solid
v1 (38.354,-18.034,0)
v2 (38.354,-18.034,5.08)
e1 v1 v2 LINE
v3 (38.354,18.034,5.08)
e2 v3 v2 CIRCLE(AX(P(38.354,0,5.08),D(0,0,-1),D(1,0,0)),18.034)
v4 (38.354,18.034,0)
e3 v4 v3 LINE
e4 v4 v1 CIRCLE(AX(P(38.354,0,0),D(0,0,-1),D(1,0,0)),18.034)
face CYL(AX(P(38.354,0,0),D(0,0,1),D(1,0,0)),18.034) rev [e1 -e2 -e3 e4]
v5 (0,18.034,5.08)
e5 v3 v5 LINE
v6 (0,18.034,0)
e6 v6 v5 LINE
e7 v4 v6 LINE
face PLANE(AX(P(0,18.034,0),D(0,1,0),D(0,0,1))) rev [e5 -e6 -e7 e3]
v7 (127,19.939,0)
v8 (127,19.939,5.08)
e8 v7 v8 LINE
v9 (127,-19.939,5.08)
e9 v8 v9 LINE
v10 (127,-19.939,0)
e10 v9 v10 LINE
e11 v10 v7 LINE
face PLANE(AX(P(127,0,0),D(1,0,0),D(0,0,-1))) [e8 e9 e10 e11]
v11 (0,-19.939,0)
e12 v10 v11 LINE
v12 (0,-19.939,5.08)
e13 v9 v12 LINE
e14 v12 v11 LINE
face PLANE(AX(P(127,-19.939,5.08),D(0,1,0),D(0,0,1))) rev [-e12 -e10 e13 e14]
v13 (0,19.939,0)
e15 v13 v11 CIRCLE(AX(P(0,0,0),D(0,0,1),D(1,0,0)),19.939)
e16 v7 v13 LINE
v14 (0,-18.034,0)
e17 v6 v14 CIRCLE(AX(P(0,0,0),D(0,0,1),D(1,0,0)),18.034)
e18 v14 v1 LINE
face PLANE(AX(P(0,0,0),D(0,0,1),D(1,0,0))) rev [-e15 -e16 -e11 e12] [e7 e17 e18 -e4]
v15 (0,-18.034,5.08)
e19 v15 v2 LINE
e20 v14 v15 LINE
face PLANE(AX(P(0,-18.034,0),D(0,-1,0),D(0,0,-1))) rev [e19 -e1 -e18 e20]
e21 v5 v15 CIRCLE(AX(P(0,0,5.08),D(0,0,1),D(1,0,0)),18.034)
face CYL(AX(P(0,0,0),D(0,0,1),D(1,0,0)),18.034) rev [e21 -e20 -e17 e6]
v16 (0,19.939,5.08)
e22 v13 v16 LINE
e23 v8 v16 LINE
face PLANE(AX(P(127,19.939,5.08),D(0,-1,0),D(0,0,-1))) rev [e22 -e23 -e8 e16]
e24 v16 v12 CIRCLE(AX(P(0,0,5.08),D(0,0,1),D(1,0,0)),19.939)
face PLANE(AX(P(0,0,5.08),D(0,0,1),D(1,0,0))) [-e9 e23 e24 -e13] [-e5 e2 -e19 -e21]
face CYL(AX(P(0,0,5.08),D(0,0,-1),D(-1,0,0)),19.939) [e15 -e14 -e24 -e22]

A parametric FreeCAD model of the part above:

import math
import FreeCAD as App
import Part
import Sketcher
from FreeCAD import Vector
Q = App.Units.Quantity

doc = App.newDocument("Part")
body = doc.addObject("PartDesign::Body", "Body")

# Sketch on XY plane
sketch1 = doc.addObject("Sketcher::SketchObject", "Sketch")
body.addObject(sketch1)
sketch1.AttachmentSupport = (doc.XY_Plane, [""])
sketch1.MapMode = "FlatFace"
sketch1.addGeometry(Part.Circle(Vector(0, 0, 0), Vector(0, 0, 1), 20), False)
sketch1.addConstraint([
    Sketcher.Constraint("Coincident", 0, 3, -1, 1),
    Sketcher.Constraint("Diameter", 0, Q("1.57 in")),
])
pad1 = doc.addObject("PartDesign::Pad", "Pad")
body.addObject(pad1)
pad1.Profile = sketch1
pad1.Length = Q("0.2 in")

# Sketch on YZ plane
sketch2 = doc.addObject("Sketcher::SketchObject", "Sketch001")
body.addObject(sketch2)
sketch2.AttachmentSupport = (doc.YZ_Plane, [""])
sketch2.MapMode = "FlatFace"
sketch2.addGeometry([
    Part.LineSegment(Vector(20, 5, 0), Vector(-20, 5, 0)),
    Part.LineSegment(Vector(-20, 5, 0), Vector(-20, 0, 0)),
    Part.LineSegment(Vector(-20, 0, 0), Vector(20, 0, 0)),
    Part.LineSegment(Vector(20, 0, 0), Vector(20, 5, 0)),
], False)
sketch2.addConstraint([
    Sketcher.Constraint("Coincident", 0, 2, 1, 1),
    Sketcher.Constraint("Coincident", 1, 2, 2, 1),
    Sketcher.Constraint("Coincident", 2, 2, 3, 1),
    Sketcher.Constraint("Coincident", 3, 2, 0, 1),
    Sketcher.Constraint("Horizontal", 0),
    Sketcher.Constraint("Vertical", 1),
    Sketcher.Constraint("Horizontal", 2),
    Sketcher.Constraint("Vertical", 3),
    Sketcher.Constraint("Symmetric", 1, 2, 2, 2, -1, 1),
    Sketcher.Constraint("DistanceY", 1, 2, 1, 1, Q("0.2 in")),
    Sketcher.Constraint("DistanceX", 0, 2, 0, 1, Q("1.57 in")),
])
pad2 = doc.addObject("PartDesign::Pad", "Pad001")
body.addObject(pad2)
pad2.Profile = sketch2
pad2.Length = Q("5 in")

# Sketch on XY plane
sketch3 = doc.addObject("Sketcher::SketchObject", "Sketch002")
body.addObject(sketch3)
sketch3.AttachmentSupport = (doc.XY_Plane, [""])
sketch3.MapMode = "FlatFace"
sketch3.AttachmentOffset = App.Placement(Vector(0, 0, 0.2 * 25.4), App.Rotation())
sketch3.addGeometry(Part.Circle(Vector(0, 0, 0), Vector(0, 0, 1), 18), False)
sketch3.addConstraint([
    Sketcher.Constraint("Coincident", 0, 3, -1, 1),
    Sketcher.Constraint("Diameter", 0, Q("1.42 in")),
])
pocket1 = doc.addObject("PartDesign::Pocket", "Pocket")
body.addObject(pocket1)
pocket1.Profile = sketch3
pocket1.Type = "ThroughAll"

# Sketch on XY plane
sketch4 = doc.addObject("Sketcher::SketchObject", "Sketch003")
body.addObject(sketch4)
sketch4.AttachmentSupport = (doc.XY_Plane, [""])
sketch4.MapMode = "FlatFace"
sketch4.AttachmentOffset = App.Placement(Vector(0, 0, 0.2 * 25.4), App.Rotation())
sketch4.addGeometry([
    Part.LineSegment(Vector(0, 18, 0), Vector(0, -18, 0)),
    Part.LineSegment(Vector(0, -18, 0), Vector(125, -18, 0)),
    Part.LineSegment(Vector(125, -18, 0), Vector(125, 18, 0)),
    Part.LineSegment(Vector(125, 18, 0), Vector(0, 18, 0)),
], False)
sketch4.addConstraint([
    Sketcher.Constraint("Coincident", 0, 2, 1, 1),
    Sketcher.Constraint("Coincident", 1, 2, 2, 1),
    Sketcher.Constraint("Coincident", 2, 2, 3, 1),
    Sketcher.Constraint("Coincident", 3, 2, 0, 1),
    Sketcher.Constraint("Vertical", 0),
    Sketcher.Constraint("Horizontal", 1),
    Sketcher.Constraint("Vertical", 2),
    Sketcher.Constraint("Horizontal", 3),
    Sketcher.Constraint("Symmetric", 0, 2, 3, 2, -1, 1),
    Sketcher.Constraint("DistanceY", 0, 2, 0, 1, Q("1.42 in")),
    Sketcher.Constraint("DistanceX", 1, 1, 1, 2, Q("4.925 in")),
])
pocket2 = doc.addObject("PartDesign::Pocket", "Pocket001")
body.addObject(pocket2)
pocket2.Profile = sketch4
pocket2.Type = "ThroughAll"

# Sketch on XY plane
sketch5 = doc.addObject("Sketcher::SketchObject", "Sketch004")
body.addObject(sketch5)
sketch5.AttachmentSupport = (doc.XY_Plane, [""])
sketch5.MapMode = "FlatFace"
sketch5.AttachmentOffset = App.Placement(Vector(0, 0, 0.2 * 25.4), App.Rotation())
sketch5.addGeometry([
    Part.LineSegment(Vector(125, 18, 0), Vector(38, 18, 0)),
    Part.ArcOfCircle(Part.Circle(Vector(38, 0, 0), Vector(0, 0, 1), 18), math.radians(-90), math.radians(90)),
    Part.LineSegment(Vector(38, -18, 0), Vector(125, -18, 0)),
    Part.LineSegment(Vector(125, -18, 0), Vector(125, 18, 0)),
], False)
sketch5.addConstraint([
    Sketcher.Constraint("Tangent", 0, 2, 1, 2),
    Sketcher.Constraint("Tangent", 1, 1, 2, 1),
    Sketcher.Constraint("Coincident", 2, 2, 3, 1),
    Sketcher.Constraint("Coincident", 3, 2, 0, 1),
    Sketcher.Constraint("Horizontal", 0),
    Sketcher.Constraint("Horizontal", 2),
    Sketcher.Constraint("Vertical", 3),
    Sketcher.Constraint("PointOnObject", 1, 3, -1),
    Sketcher.Constraint("Radius", 1, Q("0.71 in")),
    Sketcher.Constraint("DistanceX", 0, 2, 0, 1, Q("3.415 in")),
    Sketcher.Constraint("DistanceX", -1, 1, 1, 3, Q("1.51 in")),
])
pad3 = doc.addObject("PartDesign::Pad", "Pad002")
body.addObject(pad3)
pad3.Profile = sketch5
pad3.Length = Q("0.2 in")
pad3.Reversed = True

doc.recompute()
